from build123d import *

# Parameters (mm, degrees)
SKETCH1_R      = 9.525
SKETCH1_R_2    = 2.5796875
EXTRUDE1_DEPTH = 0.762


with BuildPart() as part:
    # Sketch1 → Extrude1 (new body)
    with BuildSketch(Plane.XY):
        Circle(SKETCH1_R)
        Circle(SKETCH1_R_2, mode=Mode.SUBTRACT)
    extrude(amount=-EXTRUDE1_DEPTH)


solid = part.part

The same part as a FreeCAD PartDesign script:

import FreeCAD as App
import Part
import Sketcher
from FreeCAD import Vector
Q = App.Units.Quantity

doc = App.newDocument("Part")
body = doc.addObject("PartDesign::Body", "Body")

# Sketch on XY plane
sketch1 = body.newObject("Sketcher::SketchObject", "Sketch")
sketch1.AttachmentSupport = (doc.getObject("XY_Plane"), [""])
sketch1.MapMode = "FlatFace"
sketch1.addGeometry([
    Part.Circle(Vector(0, 0, 0), Vector(0, 0, 1), 9.5),
    Part.Circle(Vector(0, 0, 0), Vector(0, 0, 1), 2.6),
], False)
sketch1.addConstraint([
    Sketcher.Constraint("Coincident", 0, 3, -1, 1),
    Sketcher.Constraint("Coincident", 1, 3, -1, 1),
    Sketcher.Constraint("Diameter", 0, Q("0.75 in")),
    Sketcher.Constraint("Diameter", 1, Q("0.203125 in")),
])
pad1 = body.newObject("PartDesign::Pad", "Pad")
pad1.Profile = sketch1
pad1.Length = Q("0.03 in")
pad1.Reversed = True

doc.recompute()
